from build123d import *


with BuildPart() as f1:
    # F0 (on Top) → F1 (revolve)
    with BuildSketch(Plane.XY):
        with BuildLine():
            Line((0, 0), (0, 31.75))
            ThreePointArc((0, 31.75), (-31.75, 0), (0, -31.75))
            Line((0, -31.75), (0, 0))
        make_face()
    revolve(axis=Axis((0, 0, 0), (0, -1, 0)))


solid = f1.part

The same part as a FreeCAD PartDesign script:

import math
import FreeCAD as App
import Part
import Sketcher
from FreeCAD import Vector
Q = App.Units.Quantity

doc = App.newDocument("Part")
body = doc.addObject("PartDesign::Body", "Body")

# Sketch on XY plane
sketch1 = body.newObject("Sketcher::SketchObject", "Sketch")
sketch1.AttachmentSupport = (doc.getObject("XY_Plane"), [""])
sketch1.MapMode = "FlatFace"
sketch1.addGeometry(Part.ArcOfCircle(Part.Circle(Vector(0, 0, 0), Vector(0, 0, 1), 31.75), math.radians(90), math.radians(270)), False)
sketch1.addGeometry(Part.LineSegment(Vector(0, -31.75, 0), Vector(0, 31.75, 0)), False)
sketch1.addConstraint(Sketcher.Constraint("Coincident", 0, 1, 1, 2))
sketch1.addConstraint(Sketcher.Constraint("Coincident", 1, 1, 0, 2))
sketch1.addConstraint(Sketcher.Constraint("Vertical", 1))
sketch1.addConstraint(Sketcher.Constraint("Coincident", 0, 3, -1, 1))
sketch1.addConstraint(Sketcher.Constraint("PointOnObject", 0, 1, -2))
sketch1.addConstraint(Sketcher.Constraint("Radius", 0, Q("1.25 in")))
revolution = body.newObject("PartDesign::Revolution", "Revolution")
revolution.Profile = sketch1
revolution.ReferenceAxis = (sketch1, ["V_Axis"])
revolution.Angle = 360

doc.recompute()
